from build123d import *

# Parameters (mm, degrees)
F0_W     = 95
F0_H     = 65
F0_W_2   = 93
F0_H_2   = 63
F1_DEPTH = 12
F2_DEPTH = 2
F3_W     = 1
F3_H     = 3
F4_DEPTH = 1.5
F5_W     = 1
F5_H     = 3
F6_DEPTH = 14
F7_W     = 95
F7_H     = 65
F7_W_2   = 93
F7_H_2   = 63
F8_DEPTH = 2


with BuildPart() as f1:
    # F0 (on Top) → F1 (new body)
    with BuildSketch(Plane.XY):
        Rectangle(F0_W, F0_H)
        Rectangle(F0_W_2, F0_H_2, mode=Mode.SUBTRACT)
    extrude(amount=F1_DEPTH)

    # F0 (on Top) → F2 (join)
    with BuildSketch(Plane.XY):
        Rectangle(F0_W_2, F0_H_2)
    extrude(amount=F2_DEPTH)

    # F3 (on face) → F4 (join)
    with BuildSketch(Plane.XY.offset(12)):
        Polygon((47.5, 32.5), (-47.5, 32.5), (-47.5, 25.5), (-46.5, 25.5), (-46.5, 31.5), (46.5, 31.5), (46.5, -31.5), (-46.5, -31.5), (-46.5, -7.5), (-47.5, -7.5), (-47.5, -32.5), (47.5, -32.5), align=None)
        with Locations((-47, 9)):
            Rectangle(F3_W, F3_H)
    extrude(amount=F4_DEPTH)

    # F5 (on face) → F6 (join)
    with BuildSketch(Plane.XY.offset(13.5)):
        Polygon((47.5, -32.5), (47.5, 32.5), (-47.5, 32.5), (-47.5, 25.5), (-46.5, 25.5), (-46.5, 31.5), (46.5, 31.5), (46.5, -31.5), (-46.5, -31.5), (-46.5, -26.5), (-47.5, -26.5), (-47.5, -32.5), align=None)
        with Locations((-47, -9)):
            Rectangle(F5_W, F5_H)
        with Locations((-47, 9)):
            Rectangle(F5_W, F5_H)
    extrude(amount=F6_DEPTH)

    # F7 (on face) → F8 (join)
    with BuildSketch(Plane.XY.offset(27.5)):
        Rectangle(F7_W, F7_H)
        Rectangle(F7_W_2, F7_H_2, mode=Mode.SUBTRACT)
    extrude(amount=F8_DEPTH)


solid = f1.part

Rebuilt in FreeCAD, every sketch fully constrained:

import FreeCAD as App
import Part
import Sketcher
from FreeCAD import Vector
Q = App.Units.Quantity

doc = App.newDocument("Part")
body = doc.addObject("PartDesign::Body", "Body")

sketch1 = body.newObject("Sketcher::SketchObject", "Sketch")
sketch1.AttachmentSupport = (doc.getObject("XY_Plane"), [""])
sketch1.MapMode = "FlatFace"
sketch1.addGeometry([
    Part.LineSegment(Vector(-48, 32, 0), Vector(-48, -32, 0)),
    Part.LineSegment(Vector(-48, -32, 0), Vector(48, -32, 0)),
    Part.LineSegment(Vector(48, -32, 0), Vector(48, 32, 0)),
    Part.LineSegment(Vector(48, 32, 0), Vector(-48, 32, 0)),
    Part.LineSegment(Vector(46, -32, 0), Vector(-46, -32, 0)),
    Part.LineSegment(Vector(-46, -32, 0), Vector(-46, 32, 0)),
    Part.LineSegment(Vector(-46, 32, 0), Vector(46, 32, 0)),
    Part.LineSegment(Vector(46, 32, 0), Vector(46, -32, 0)),
], False)
sketch1.addConstraint([
    Sketcher.Constraint("Coincident", 0, 2, 1, 1),
    Sketcher.Constraint("Coincident", 1, 2, 2, 1),
    Sketcher.Constraint("Coincident", 2, 2, 3, 1),
    Sketcher.Constraint("Coincident", 3, 2, 0, 1),
    Sketcher.Constraint("Coincident", 4, 2, 5, 1),
    Sketcher.Constraint("Coincident", 5, 2, 6, 1),
    Sketcher.Constraint("Coincident", 6, 2, 7, 1),
    Sketcher.Constraint("Coincident", 7, 2, 4, 1),
    Sketcher.Constraint("Vertical", 0),
    Sketcher.Constraint("Horizontal", 1),
    Sketcher.Constraint("Vertical", 2),
    Sketcher.Constraint("Horizontal", 3),
    Sketcher.Constraint("Horizontal", 4),
    Sketcher.Constraint("Vertical", 5),
    Sketcher.Constraint("Horizontal", 6),
    Sketcher.Constraint("Vertical", 7),
    Sketcher.Constraint("Symmetric", 0, 2, 2, 2, -1, 1),
    Sketcher.Constraint("Symmetric", 4, 2, 6, 2, -1, 1),
    Sketcher.Constraint("DistanceX", 1, 1, 1, 2, Q("95 mm")),
    Sketcher.Constraint("DistanceX", 4, 2, 4, 1, Q("93 mm")),
    Sketcher.Constraint("DistanceY", 0, 2, 0, 1, Q("65 mm")),
    Sketcher.Constraint("DistanceY", 5, 1, 5, 2, Q("63 mm")),
])
pad1 = body.newObject("PartDesign::Pad", "Pad")
pad1.Profile = sketch1
pad1.Length = 12

sketch2 = body.newObject("Sketcher::SketchObject", "Sketch001")
sketch2.AttachmentSupport = (doc.getObject("XY_Plane"), [""])
sketch2.MapMode = "FlatFace"
sketch2.addGeometry([
    Part.LineSegment(Vector(-46, 32, 0), Vector(-46, -32, 0)),
    Part.LineSegment(Vector(-46, -32, 0), Vector(46, -32, 0)),
    Part.LineSegment(Vector(46, -32, 0), Vector(46, 32, 0)),
    Part.LineSegment(Vector(46, 32, 0), Vector(-46, 32, 0)),
], False)
sketch2.addConstraint([
    Sketcher.Constraint("Coincident", 0, 2, 1, 1),
    Sketcher.Constraint("Coincident", 1, 2, 2, 1),
    Sketcher.Constraint("Coincident", 2, 2, 3, 1),
    Sketcher.Constraint("Coincident", 3, 2, 0, 1),
    Sketcher.Constraint("Vertical", 0),
    Sketcher.Constraint("Horizontal", 1),
    Sketcher.Constraint("Vertical", 2),
    Sketcher.Constraint("Horizontal", 3),
    Sketcher.Constraint("Symmetric", 0, 2, 2, 2, -1, 1),
    Sketcher.Constraint("DistanceX", 1, 1, 1, 2, Q("93 mm")),
    Sketcher.Constraint("DistanceY", 0, 2, 0, 1, Q("63 mm")),
])
pad2 = body.newObject("PartDesign::Pad", "Pad001")
pad2.Profile = sketch2
pad2.Length = 2

sketch3 = body.newObject("Sketcher::SketchObject", "Sketch002")
sketch3.AttachmentSupport = (doc.getObject("XY_Plane"), [""])
sketch3.MapMode = "FlatFace"
sketch3.AttachmentOffset = App.Placement(Vector(0, 0, 12), App.Rotation())
sketch3.addGeometry([
    Part.LineSegment(Vector(47.5, 32.5, 0), Vector(-47.5, 32.5, 0)),
    Part.LineSegment(Vector(-47.5, 32.5, 0), Vector(-47.5, 25.5, 0)),
    Part.LineSegment(Vector(-47.5, 25.5, 0), Vector(-46.5, 25.5, 0)),
    Part.LineSegment(Vector(-46.5, 25.5, 0), Vector(-46.5, 31.5, 0)),
    Part.LineSegment(Vector(-46.5, 31.5, 0), Vector(46.5, 31.5, 0)),
    Part.LineSegment(Vector(46.5, 31.5, 0), Vector(46.5, -31.5, 0)),
    Part.LineSegment(Vector(46.5, -31.5, 0), Vector(-46.5, -31.5, 0)),
    Part.LineSegment(Vector(-46.5, -31.5, 0), Vector(-46.5, -7.5, 0)),
    Part.LineSegment(Vector(-46.5, -7.5, 0), Vector(-47.5, -7.5, 0)),
    Part.LineSegment(Vector(-47.5, -7.5, 0), Vector(-47.5, -32.5, 0)),
    Part.LineSegment(Vector(-47.5, -32.5, 0), Vector(47.5, -32.5, 0)),
    Part.LineSegment(Vector(47.5, -32.5, 0), Vector(47.5, 32.5, 0)),
    Part.LineSegment(Vector(-47.5, 10.5, 0), Vector(-47.5, 7.5, 0)),
    Part.LineSegment(Vector(-47.5, 7.5, 0), Vector(-46.5, 7.5, 0)),
    Part.LineSegment(Vector(-46.5, 7.5, 0), Vector(-46.5, 10.5, 0)),
    Part.LineSegment(Vector(-46.5, 10.5, 0), Vector(-47.5, 10.5, 0)),
], False)
sketch3.addConstraint([
    Sketcher.Constraint("Coincident", 0, 2, 1, 1),
    Sketcher.Constraint("Coincident", 1, 2, 2, 1),
    Sketcher.Constraint("Coincident", 2, 2, 3, 1),
    Sketcher.Constraint("Coincident", 3, 2, 4, 1),
    Sketcher.Constraint("Coincident", 4, 2, 5, 1),
    Sketcher.Constraint("Coincident", 5, 2, 6, 1),
    Sketcher.Constraint("Coincident", 6, 2, 7, 1),
    Sketcher.Constraint("Coincident", 7, 2, 8, 1),
    Sketcher.Constraint("Coincident", 8, 2, 9, 1),
    Sketcher.Constraint("Coincident", 9, 2, 10, 1),
    Sketcher.Constraint("Coincident", 10, 2, 11, 1),
    Sketcher.Constraint("Coincident", 11, 2, 0, 1),
    Sketcher.Constraint("Coincident", 12, 2, 13, 1),
    Sketcher.Constraint("Coincident", 13, 2, 14, 1),
    Sketcher.Constraint("Coincident", 14, 2, 15, 1),
    Sketcher.Constraint("Coincident", 15, 2, 12, 1),
    Sketcher.Constraint("Horizontal", 0),
    Sketcher.Constraint("Vertical", 1),
    Sketcher.Constraint("Horizontal", 2),
    Sketcher.Constraint("Vertical", 3),
    Sketcher.Constraint("Horizontal", 4),
    Sketcher.Constraint("Vertical", 5),
    Sketcher.Constraint("Horizontal", 6),
    Sketcher.Constraint("Vertical", 7),
    Sketcher.Constraint("Horizontal", 8),
    Sketcher.Constraint("Vertical", 9),
    Sketcher.Constraint("Horizontal", 10),
    Sketcher.Constraint("Vertical", 11),
    Sketcher.Constraint("Vertical", 12),
    Sketcher.Constraint("Horizontal", 13),
    Sketcher.Constraint("Vertical", 14),
    Sketcher.Constraint("Horizontal", 15),
    Sketcher.Constraint("Symmetric", 3, 2, 5, 2, -1, 1),
    Sketcher.Constraint("Symmetric", 0, 2, 10, 2, -1, 1),
    Sketcher.Constraint("Symmetric", 8, 2, 12, 2, -1),
    Sketcher.Constraint("Vertical", 3, 2, 6, 2),
    Sketcher.Constraint("Vertical", 1, 2, 8, 2),
    Sketcher.Constraint("Vertical", 7, 2, 13, 2),
    Sketcher.Constraint("DistanceX", 0, 2, 0, 1, Q("95 mm")),
    Sketcher.Constraint("DistanceX", 2, 1, 2, 2, Q("1 mm")),
    Sketcher.Constraint("DistanceY", 1, 2, 1, 1, Q("7 mm")),
    Sketcher.Constraint("DistanceY", 3, 1, 3, 2, Q("6 mm")),
    Sketcher.Constraint("DistanceY", 5, 2, 5, 1, Q("63 mm")),
    Sketcher.Constraint("DistanceY", 7, 1, 7, 2, Q("24 mm")),
    Sketcher.Constraint("DistanceY", 12, 2, 12, 1, Q("3 mm")),
])
pad3 = body.newObject("PartDesign::Pad", "Pad002")
pad3.Profile = sketch3
pad3.Length = 1.5

sketch4 = body.newObject("Sketcher::SketchObject", "Sketch003")
sketch4.AttachmentSupport = (doc.getObject("XY_Plane"), [""])
sketch4.MapMode = "FlatFace"
sketch4.AttachmentOffset = App.Placement(Vector(0, 0, 13.5), App.Rotation())
sketch4.addGeometry([
    Part.LineSegment(Vector(47.5, -32.5, 0), Vector(47.5, 32.5, 0)),
    Part.LineSegment(Vector(47.5, 32.5, 0), Vector(-47.5, 32.5, 0)),
    Part.LineSegment(Vector(-47.5, 32.5, 0), Vector(-47.5, 25.5, 0)),
    Part.LineSegment(Vector(-47.5, 25.5, 0), Vector(-46.5, 25.5, 0)),
    Part.LineSegment(Vector(-46.5, 25.5, 0), Vector(-46.5, 31.5, 0)),
    Part.LineSegment(Vector(-46.5, 31.5, 0), Vector(46.5, 31.5, 0)),
    Part.LineSegment(Vector(46.5, 31.5, 0), Vector(46.5, -31.5, 0)),
    Part.LineSegment(Vector(46.5, -31.5, 0), Vector(-46.5, -31.5, 0)),
    Part.LineSegment(Vector(-46.5, -31.5, 0), Vector(-46.5, -26.5, 0)),
    Part.LineSegment(Vector(-46.5, -26.5, 0), Vector(-47.5, -26.5, 0)),
    Part.LineSegment(Vector(-47.5, -26.5, 0), Vector(-47.5, -32.5, 0)),
    Part.LineSegment(Vector(-47.5, -32.5, 0), Vector(47.5, -32.5, 0)),
    Part.LineSegment(Vector(-47.5, -7.5, 0), Vector(-47.5, -10.5, 0)),
    Part.LineSegment(Vector(-47.5, -10.5, 0), Vector(-46.5, -10.5, 0)),
    Part.LineSegment(Vector(-46.5, -10.5, 0), Vector(-46.5, -7.5, 0)),
    Part.LineSegment(Vector(-46.5, -7.5, 0), Vector(-47.5, -7.5, 0)),
    Part.LineSegment(Vector(-47.5, 10.5, 0), Vector(-47.5, 7.5, 0)),
    Part.LineSegment(Vector(-47.5, 7.5, 0), Vector(-46.5, 7.5, 0)),
    Part.LineSegment(Vector(-46.5, 7.5, 0), Vector(-46.5, 10.5, 0)),
    Part.LineSegment(Vector(-46.5, 10.5, 0), Vector(-47.5, 10.5, 0)),
], False)
sketch4.addConstraint([
    Sketcher.Constraint("Coincident", 0, 2, 1, 1),
    Sketcher.Constraint("Coincident", 1, 2, 2, 1),
    Sketcher.Constraint("Coincident", 2, 2, 3, 1),
    Sketcher.Constraint("Coincident", 3, 2, 4, 1),
    Sketcher.Constraint("Coincident", 4, 2, 5, 1),
    Sketcher.Constraint("Coincident", 5, 2, 6, 1),
    Sketcher.Constraint("Coincident", 6, 2, 7, 1),
    Sketcher.Constraint("Coincident", 7, 2, 8, 1),
    Sketcher.Constraint("Coincident", 8, 2, 9, 1),
    Sketcher.Constraint("Coincident", 9, 2, 10, 1),
    Sketcher.Constraint("Coincident", 10, 2, 11, 1),
    Sketcher.Constraint("Coincident", 11, 2, 0, 1),
    Sketcher.Constraint("Coincident", 12, 2, 13, 1),
    Sketcher.Constraint("Coincident", 13, 2, 14, 1),
    Sketcher.Constraint("Coincident", 14, 2, 15, 1),
    Sketcher.Constraint("Coincident", 15, 2, 12, 1),
    Sketcher.Constraint("Coincident", 16, 2, 17, 1),
    Sketcher.Constraint("Coincident", 17, 2, 18, 1),
    Sketcher.Constraint("Coincident", 18, 2, 19, 1),
    Sketcher.Constraint("Coincident", 19, 2, 16, 1),
    Sketcher.Constraint("Vertical", 0),
    Sketcher.Constraint("Horizontal", 1),
    Sketcher.Constraint("Vertical", 2),
    Sketcher.Constraint("Horizontal", 3),
    Sketcher.Constraint("Vertical", 4),
    Sketcher.Constraint("Horizontal", 5),
    Sketcher.Constraint("Vertical", 6),
    Sketcher.Constraint("Horizontal", 7),
    Sketcher.Constraint("Vertical", 8),
    Sketcher.Constraint("Horizontal", 9),
    Sketcher.Constraint("Vertical", 10),
    Sketcher.Constraint("Horizontal", 11),
    Sketcher.Constraint("Vertical", 12),
    Sketcher.Constraint("Horizontal", 13),
    Sketcher.Constraint("Vertical", 14),
    Sketcher.Constraint("Horizontal", 15),
    Sketcher.Constraint("Vertical", 16),
    Sketcher.Constraint("Horizontal", 17),
    Sketcher.Constraint("Vertical", 18),
    Sketcher.Constraint("Horizontal", 19),
    Sketcher.Constraint("Symmetric", 4, 2, 6, 2, -1, 1),
    Sketcher.Constraint("Symmetric", 0, 2, 10, 2, -1, 1),
    Sketcher.Constraint("Symmetric", 15, 2, 16, 2, -1),
    Sketcher.Constraint("Symmetric", 13, 2, 18, 2, -1),
    Sketcher.Constraint("Vertical", 4, 2, 7, 2),
    Sketcher.Constraint("Vertical", 2, 2, 9, 2),
    Sketcher.Constraint("Vertical", 10, 2, 12, 2),
    Sketcher.Constraint("Vertical", 8, 2, 13, 2),
    Sketcher.Constraint("Equal", 4, 10),
    Sketcher.Constraint("DistanceX", 1, 2, 1, 1, Q("95 mm")),
    Sketcher.Constraint("DistanceX", 3, 1, 3, 2, Q("1 mm")),
    Sketcher.Constraint("DistanceY", 0, 1, 0, 2, Q("65 mm")),
    Sketcher.Constraint("DistanceY", 2, 2, 2, 1, Q("7 mm")),
    Sketcher.Constraint("DistanceY", 4, 1, 4, 2, Q("6 mm")),
    Sketcher.Constraint("DistanceY", 12, 2, 12, 1, Q("3 mm")),
    Sketcher.Constraint("DistanceY", 9, 2, 12, 2, Q("16 mm")),
])
pad4 = body.newObject("PartDesign::Pad", "Pad003")
pad4.Profile = sketch4
pad4.Length = 14

sketch5 = body.newObject("Sketcher::SketchObject", "Sketch004")
sketch5.AttachmentSupport = (doc.getObject("XY_Plane"), [""])
sketch5.MapMode = "FlatFace"
sketch5.AttachmentOffset = App.Placement(Vector(0, 0, 27.5), App.Rotation())
sketch5.addGeometry([
    Part.LineSegment(Vector(-48, 32, 0), Vector(-48, -32, 0)),
    Part.LineSegment(Vector(-48, -32, 0), Vector(48, -32, 0)),
    Part.LineSegment(Vector(48, -32, 0), Vector(48, 32, 0)),
    Part.LineSegment(Vector(48, 32, 0), Vector(-48, 32, 0)),
    Part.LineSegment(Vector(46, -32, 0), Vector(-46, -32, 0)),
    Part.LineSegment(Vector(-46, -32, 0), Vector(-46, 32, 0)),
    Part.LineSegment(Vector(-46, 32, 0), Vector(46, 32, 0)),
    Part.LineSegment(Vector(46, 32, 0), Vector(46, -32, 0)),
], False)
sketch5.addConstraint([
    Sketcher.Constraint("Coincident", 0, 2, 1, 1),
    Sketcher.Constraint("Coincident", 1, 2, 2, 1),
    Sketcher.Constraint("Coincident", 2, 2, 3, 1),
    Sketcher.Constraint("Coincident", 3, 2, 0, 1),
    Sketcher.Constraint("Coincident", 4, 2, 5, 1),
    Sketcher.Constraint("Coincident", 5, 2, 6, 1),
    Sketcher.Constraint("Coincident", 6, 2, 7, 1),
    Sketcher.Constraint("Coincident", 7, 2, 4, 1),
    Sketcher.Constraint("Vertical", 0),
    Sketcher.Constraint("Horizontal", 1),
    Sketcher.Constraint("Vertical", 2),
    Sketcher.Constraint("Horizontal", 3),
    Sketcher.Constraint("Horizontal", 4),
    Sketcher.Constraint("Vertical", 5),
    Sketcher.Constraint("Horizontal", 6),
    Sketcher.Constraint("Vertical", 7),
    Sketcher.Constraint("Symmetric", 0, 2, 2, 2, -1, 1),
    Sketcher.Constraint("Symmetric", 4, 2, 6, 2, -1, 1),
    Sketcher.Constraint("DistanceX", 1, 1, 1, 2, Q("95 mm")),
    Sketcher.Constraint("DistanceX", 4, 2, 4, 1, Q("93 mm")),
    Sketcher.Constraint("DistanceY", 0, 2, 0, 1, Q("65 mm")),
    Sketcher.Constraint("DistanceY", 5, 1, 5, 2, Q("63 mm")),
])
pad5 = body.newObject("PartDesign::Pad", "Pad004")
pad5.Profile = sketch5
pad5.Length = 2

doc.recompute()
